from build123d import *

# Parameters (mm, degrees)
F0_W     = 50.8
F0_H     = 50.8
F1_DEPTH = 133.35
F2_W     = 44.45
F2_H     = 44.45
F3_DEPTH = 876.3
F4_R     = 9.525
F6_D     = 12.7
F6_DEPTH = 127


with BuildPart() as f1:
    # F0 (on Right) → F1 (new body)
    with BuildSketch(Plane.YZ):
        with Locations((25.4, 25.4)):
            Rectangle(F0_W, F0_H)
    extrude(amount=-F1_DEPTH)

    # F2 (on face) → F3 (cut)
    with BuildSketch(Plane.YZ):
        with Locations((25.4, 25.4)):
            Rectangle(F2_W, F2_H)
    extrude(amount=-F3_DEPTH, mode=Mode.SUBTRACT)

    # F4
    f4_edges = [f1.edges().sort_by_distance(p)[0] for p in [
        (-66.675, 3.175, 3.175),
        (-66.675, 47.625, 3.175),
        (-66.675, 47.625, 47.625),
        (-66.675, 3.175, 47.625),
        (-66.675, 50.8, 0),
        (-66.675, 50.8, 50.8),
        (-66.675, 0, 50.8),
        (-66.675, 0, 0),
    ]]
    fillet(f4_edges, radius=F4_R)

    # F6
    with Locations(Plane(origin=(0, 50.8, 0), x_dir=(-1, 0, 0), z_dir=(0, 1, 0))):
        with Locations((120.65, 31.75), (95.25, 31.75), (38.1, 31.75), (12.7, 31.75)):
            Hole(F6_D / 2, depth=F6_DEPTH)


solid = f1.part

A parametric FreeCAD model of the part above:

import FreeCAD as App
import Part
import Sketcher
Q = App.Units.Quantity


def edges_at(feature, points):
    """Names of the edges that pass closest to the given points."""
    edges = feature.Shape.Edges
    near = lambda p: min(range(len(edges)), key=lambda i: edges[i].distToShape(Part.Vertex(*p))[0])
    return sorted({f"Edge{near(p) + 1}" for p in points})

doc = App.newDocument("Part")
body = doc.addObject("PartDesign::Body", "Body")

# Sketch on YZ plane
sketch1 = body.newObject("Sketcher::SketchObject", "Sketch")
sketch1.AttachmentSupport = (doc.getObject("YZ_Plane"), [""])
sketch1.MapMode = "FlatFace"
sketch1.addGeometry(Part.LineSegment(App.Vector(0, 51, 0), App.Vector(0, 0, 0)), False)
sketch1.addGeometry(Part.LineSegment(App.Vector(0, 0, 0), App.Vector(51, 0, 0)), False)
sketch1.addGeometry(Part.LineSegment(App.Vector(51, 0, 0), App.Vector(51, 51, 0)), False)
sketch1.addGeometry(Part.LineSegment(App.Vector(51, 51, 0), App.Vector(0, 51, 0)), False)
sketch1.addConstraint(Sketcher.Constraint("Coincident", 0, 2, 1, 1))
sketch1.addConstraint(Sketcher.Constraint("Coincident", 1, 2, 2, 1))
sketch1.addConstraint(Sketcher.Constraint("Coincident", 2, 2, 3, 1))
sketch1.addConstraint(Sketcher.Constraint("Coincident", 3, 2, 0, 1))
sketch1.addConstraint(Sketcher.Constraint("Vertical", 0))
sketch1.addConstraint(Sketcher.Constraint("Horizontal", 1))
sketch1.addConstraint(Sketcher.Constraint("Vertical", 2))
sketch1.addConstraint(Sketcher.Constraint("Horizontal", 3))
sketch1.addConstraint(Sketcher.Constraint("Coincident", 0, 2, -1, 1))
sketch1.addConstraint(Sketcher.Constraint("Equal", 3, 0))
sketch1.addConstraint(Sketcher.Constraint("DistanceX", 1, 1, 1, 2, Q("2 in")))
pad1 = body.newObject("PartDesign::Pad", "Pad")
pad1.Profile = sketch1
pad1.Length = Q("5.25 in")
pad1.Reversed = True

# Sketch on YZ plane
sketch2 = body.newObject("Sketcher::SketchObject", "Sketch001")
sketch2.AttachmentSupport = (doc.getObject("YZ_Plane"), [""])
sketch2.MapMode = "FlatFace"
sketch2.addGeometry(Part.LineSegment(App.Vector(3, 48, 0), App.Vector(3, 3, 0)), False)
sketch2.addGeometry(Part.LineSegment(App.Vector(3, 3, 0), App.Vector(48, 3, 0)), False)
sketch2.addGeometry(Part.LineSegment(App.Vector(48, 3, 0), App.Vector(48, 48, 0)), False)
sketch2.addGeometry(Part.LineSegment(App.Vector(48, 48, 0), App.Vector(3, 48, 0)), False)
sketch2.addConstraint(Sketcher.Constraint("Coincident", 0, 2, 1, 1))
sketch2.addConstraint(Sketcher.Constraint("Coincident", 1, 2, 2, 1))
sketch2.addConstraint(Sketcher.Constraint("Coincident", 2, 2, 3, 1))
sketch2.addConstraint(Sketcher.Constraint("Coincident", 3, 2, 0, 1))
sketch2.addConstraint(Sketcher.Constraint("Vertical", 0))
sketch2.addConstraint(Sketcher.Constraint("Horizontal", 1))
sketch2.addConstraint(Sketcher.Constraint("Vertical", 2))
sketch2.addConstraint(Sketcher.Constraint("Horizontal", 3))
sketch2.addConstraint(Sketcher.Constraint("Equal", 3, 0))
sketch2.addConstraint(Sketcher.Constraint("DistanceX", 1, 1, 1, 2, Q("1.75 in")))
sketch2.addConstraint(Sketcher.Constraint("DistanceX", -1, 1, 0, 2, Q("0.125 in")))
sketch2.addConstraint(Sketcher.Constraint("DistanceY", -1, 1, 0, 2, Q("0.125 in")))
pocket1 = body.newObject("PartDesign::Pocket", "Pocket")
pocket1.Profile = sketch2
pocket1.Length = Q("34.5 in")
doc.recompute()

fillet = body.newObject("PartDesign::Fillet", "Fillet")
fillet.Base = (pocket1, edges_at(pocket1, [
    (-66.675, 3.175, 3.175),
    (-66.675, 47.625, 3.175),
    (-66.675, 47.625, 47.625),
    (-66.675, 3.175, 47.625),
    (-66.675, 50.8, 0),
    (-66.675, 50.8, 50.8),
    (-66.675, 0, 50.8),
    (-66.675, 0, 0),
]))
fillet.Radius = Q("0.375 in")

# Sketch on XZ plane
sketch3 = body.newObject("Sketcher::SketchObject", "Sketch002")
sketch3.AttachmentSupport = (doc.getObject("XZ_Plane"), [""])
sketch3.MapMode = "FlatFace"
sketch3.AttachmentOffset = App.Placement(App.Vector(0, 0, -2 * 25.4), App.Rotation())
sketch3.addGeometry(Part.Circle(App.Vector(-121, 32, 0), App.Vector(0, 0, 1), 6), False)
sketch3.addGeometry(Part.Circle(App.Vector(-95, 32, 0), App.Vector(0, 0, 1), 6), False)
sketch3.addGeometry(Part.Circle(App.Vector(-38, 32, 0), App.Vector(0, 0, 1), 6), False)
sketch3.addGeometry(Part.Circle(App.Vector(-13, 32, 0), App.Vector(0, 0, 1), 6), False)
sketch3.addConstraint(Sketcher.Constraint("Equal", 0, 1))
sketch3.addConstraint(Sketcher.Constraint("Equal", 1, 2))
sketch3.addConstraint(Sketcher.Constraint("Equal", 2, 3))
sketch3.addConstraint(Sketcher.Constraint("Horizontal", 0, 3, 1, 3))
sketch3.addConstraint(Sketcher.Constraint("Horizontal", 1, 3, 2, 3))
sketch3.addConstraint(Sketcher.Constraint("Horizontal", 2, 3, 3, 3))
sketch3.addConstraint(Sketcher.Constraint("Diameter", 0, Q("0.5 in")))
sketch3.addConstraint(Sketcher.Constraint("DistanceX", 0, 3, 1, 3, Q("1 in")))
sketch3.addConstraint(Sketcher.Constraint("DistanceX", 2, 3, 3, 3, Q("1 in")))
sketch3.addConstraint(Sketcher.Constraint("DistanceX", 2, 3, -1, 1, Q("1.5 in")))
sketch3.addConstraint(Sketcher.Constraint("DistanceX", 0, 3, -1, 1, Q("4.75 in")))
sketch3.addConstraint(Sketcher.Constraint("DistanceY", -1, 1, 0, 3, Q("1.25 in")))
doc.recompute()
hole = body.newObject("PartDesign::Hole", "Hole")
hole.Profile = sketch3
hole.ThreadType = "None"
hole.Diameter = Q("0.5 in")
hole.DepthType = "Dimension"
hole.Depth = Q("5 in")
hole.DrillPoint = "Flat"
hole.Reversed = True

doc.recompute()
